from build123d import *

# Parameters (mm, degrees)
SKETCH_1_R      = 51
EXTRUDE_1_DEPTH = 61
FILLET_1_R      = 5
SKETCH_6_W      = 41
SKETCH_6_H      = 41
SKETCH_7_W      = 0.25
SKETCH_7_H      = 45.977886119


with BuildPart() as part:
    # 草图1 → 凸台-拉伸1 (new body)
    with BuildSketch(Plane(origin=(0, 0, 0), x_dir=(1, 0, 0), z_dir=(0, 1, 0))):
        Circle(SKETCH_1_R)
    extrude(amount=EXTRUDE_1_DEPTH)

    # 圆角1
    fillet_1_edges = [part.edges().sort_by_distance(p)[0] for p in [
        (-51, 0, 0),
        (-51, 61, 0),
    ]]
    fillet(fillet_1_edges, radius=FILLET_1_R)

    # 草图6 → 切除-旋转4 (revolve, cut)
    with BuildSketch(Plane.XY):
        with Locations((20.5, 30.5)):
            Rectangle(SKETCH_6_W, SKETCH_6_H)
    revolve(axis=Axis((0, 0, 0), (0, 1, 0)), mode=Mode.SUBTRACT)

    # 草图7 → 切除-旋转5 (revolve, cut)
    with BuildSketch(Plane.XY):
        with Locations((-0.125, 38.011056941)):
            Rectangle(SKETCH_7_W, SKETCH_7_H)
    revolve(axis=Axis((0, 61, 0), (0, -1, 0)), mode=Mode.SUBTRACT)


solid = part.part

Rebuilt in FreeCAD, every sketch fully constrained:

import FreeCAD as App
import Part
import Sketcher
from FreeCAD import Vector
Q = App.Units.Quantity


def edges_at(feature, points):
    """Names of the edges that pass closest to the given points."""
    edges = feature.Shape.Edges
    near = lambda p: min(range(len(edges)), key=lambda i: edges[i].distToShape(Part.Vertex(*p))[0])
    return sorted({f"Edge{near(p) + 1}" for p in points})

doc = App.newDocument("Part")
body = doc.addObject("PartDesign::Body", "Body")

# Sketch on XZ plane
sketch1 = doc.addObject("Sketcher::SketchObject", "Sketch")
body.addObject(sketch1)
sketch1.AttachmentSupport = (doc.XZ_Plane, [""])
sketch1.MapMode = "FlatFace"
sketch1.addGeometry(Part.Circle(Vector(0, 0, 0), Vector(0, 0, 1), 51), False)
sketch1.addConstraint([
    Sketcher.Constraint("Coincident", 0, 3, -1, 1),
    Sketcher.Constraint("Diameter", 0, Q("102 mm")),
])
pad1 = doc.addObject("PartDesign::Pad", "Pad")
body.addObject(pad1)
pad1.Profile = sketch1
pad1.Length = 61
pad1.Reversed = True
doc.recompute()

fillet = doc.addObject("PartDesign::Fillet", "Fillet")
body.addObject(fillet)
fillet.Base = (pad1, edges_at(pad1, [(-51, 0, 0), (-51, 61, 0)]))
fillet.Radius = 5

# Sketch on XY plane
sketch2 = doc.addObject("Sketcher::SketchObject", "Sketch001")
body.addObject(sketch2)
sketch2.AttachmentSupport = (doc.XY_Plane, [""])
sketch2.MapMode = "FlatFace"
sketch2.addGeometry([
    Part.LineSegment(Vector(0, 51, 0), Vector(0, 10, 0)),
    Part.LineSegment(Vector(0, 10, 0), Vector(41, 10, 0)),
    Part.LineSegment(Vector(41, 10, 0), Vector(41, 51, 0)),
    Part.LineSegment(Vector(41, 51, 0), Vector(0, 51, 0)),
], False)
sketch2.addConstraint([
    Sketcher.Constraint("Coincident", 0, 2, 1, 1),
    Sketcher.Constraint("Coincident", 1, 2, 2, 1),
    Sketcher.Constraint("Coincident", 2, 2, 3, 1),
    Sketcher.Constraint("Coincident", 3, 2, 0, 1),
    Sketcher.Constraint("Vertical", 0),
    Sketcher.Constraint("Horizontal", 1),
    Sketcher.Constraint("Vertical", 2),
    Sketcher.Constraint("Horizontal", 3),
    Sketcher.Constraint("PointOnObject", 0, 2, -2),
    Sketcher.Constraint("Equal", 3, 0),
    Sketcher.Constraint("DistanceX", 1, 1, 1, 2, Q("41 mm")),
    Sketcher.Constraint("DistanceY", -1, 1, 0, 2, Q("10 mm")),
])
groove = doc.addObject("PartDesign::Groove", "Groove")
body.addObject(groove)
groove.Profile = sketch2
groove.ReferenceAxis = (sketch2, ["V_Axis"])
groove.Angle = 360

# Sketch on XY plane
sketch3 = doc.addObject("Sketcher::SketchObject", "Sketch002")
body.addObject(sketch3)
sketch3.AttachmentSupport = (doc.XY_Plane, [""])
sketch3.MapMode = "FlatFace"
sketch3.addGeometry([
    Part.LineSegment(Vector(-0.25, 61, 0), Vector(-0.25, 15.02, 0)),
    Part.LineSegment(Vector(-0.25, 15.02, 0), Vector(0, 15.02, 0)),
    Part.LineSegment(Vector(0, 15.02, 0), Vector(0, 61, 0)),
    Part.LineSegment(Vector(0, 61, 0), Vector(-0.25, 61, 0)),
], False)
sketch3.addConstraint([
    Sketcher.Constraint("Coincident", 0, 2, 1, 1),
    Sketcher.Constraint("Coincident", 1, 2, 2, 1),
    Sketcher.Constraint("Coincident", 2, 2, 3, 1),
    Sketcher.Constraint("Coincident", 3, 2, 0, 1),
    Sketcher.Constraint("Vertical", 0),
    Sketcher.Constraint("Horizontal", 1),
    Sketcher.Constraint("Vertical", 2),
    Sketcher.Constraint("Horizontal", 3),
    Sketcher.Constraint("PointOnObject", 1, 2, -2),
    Sketcher.Constraint("DistanceY", -1, 1, 2, 2, Q("61 mm")),
    Sketcher.Constraint("DistanceX", 1, 1, 1, 2, Q("0.25 mm")),
    Sketcher.Constraint("DistanceY", 0, 2, 0, 1, Q("45.977886 mm")),
])
groove2 = doc.addObject("PartDesign::Groove", "Groove001")
body.addObject(groove2)
groove2.Profile = sketch3
groove2.ReferenceAxis = (sketch3, ["V_Axis"])
groove2.Angle = 360

doc.recompute()
